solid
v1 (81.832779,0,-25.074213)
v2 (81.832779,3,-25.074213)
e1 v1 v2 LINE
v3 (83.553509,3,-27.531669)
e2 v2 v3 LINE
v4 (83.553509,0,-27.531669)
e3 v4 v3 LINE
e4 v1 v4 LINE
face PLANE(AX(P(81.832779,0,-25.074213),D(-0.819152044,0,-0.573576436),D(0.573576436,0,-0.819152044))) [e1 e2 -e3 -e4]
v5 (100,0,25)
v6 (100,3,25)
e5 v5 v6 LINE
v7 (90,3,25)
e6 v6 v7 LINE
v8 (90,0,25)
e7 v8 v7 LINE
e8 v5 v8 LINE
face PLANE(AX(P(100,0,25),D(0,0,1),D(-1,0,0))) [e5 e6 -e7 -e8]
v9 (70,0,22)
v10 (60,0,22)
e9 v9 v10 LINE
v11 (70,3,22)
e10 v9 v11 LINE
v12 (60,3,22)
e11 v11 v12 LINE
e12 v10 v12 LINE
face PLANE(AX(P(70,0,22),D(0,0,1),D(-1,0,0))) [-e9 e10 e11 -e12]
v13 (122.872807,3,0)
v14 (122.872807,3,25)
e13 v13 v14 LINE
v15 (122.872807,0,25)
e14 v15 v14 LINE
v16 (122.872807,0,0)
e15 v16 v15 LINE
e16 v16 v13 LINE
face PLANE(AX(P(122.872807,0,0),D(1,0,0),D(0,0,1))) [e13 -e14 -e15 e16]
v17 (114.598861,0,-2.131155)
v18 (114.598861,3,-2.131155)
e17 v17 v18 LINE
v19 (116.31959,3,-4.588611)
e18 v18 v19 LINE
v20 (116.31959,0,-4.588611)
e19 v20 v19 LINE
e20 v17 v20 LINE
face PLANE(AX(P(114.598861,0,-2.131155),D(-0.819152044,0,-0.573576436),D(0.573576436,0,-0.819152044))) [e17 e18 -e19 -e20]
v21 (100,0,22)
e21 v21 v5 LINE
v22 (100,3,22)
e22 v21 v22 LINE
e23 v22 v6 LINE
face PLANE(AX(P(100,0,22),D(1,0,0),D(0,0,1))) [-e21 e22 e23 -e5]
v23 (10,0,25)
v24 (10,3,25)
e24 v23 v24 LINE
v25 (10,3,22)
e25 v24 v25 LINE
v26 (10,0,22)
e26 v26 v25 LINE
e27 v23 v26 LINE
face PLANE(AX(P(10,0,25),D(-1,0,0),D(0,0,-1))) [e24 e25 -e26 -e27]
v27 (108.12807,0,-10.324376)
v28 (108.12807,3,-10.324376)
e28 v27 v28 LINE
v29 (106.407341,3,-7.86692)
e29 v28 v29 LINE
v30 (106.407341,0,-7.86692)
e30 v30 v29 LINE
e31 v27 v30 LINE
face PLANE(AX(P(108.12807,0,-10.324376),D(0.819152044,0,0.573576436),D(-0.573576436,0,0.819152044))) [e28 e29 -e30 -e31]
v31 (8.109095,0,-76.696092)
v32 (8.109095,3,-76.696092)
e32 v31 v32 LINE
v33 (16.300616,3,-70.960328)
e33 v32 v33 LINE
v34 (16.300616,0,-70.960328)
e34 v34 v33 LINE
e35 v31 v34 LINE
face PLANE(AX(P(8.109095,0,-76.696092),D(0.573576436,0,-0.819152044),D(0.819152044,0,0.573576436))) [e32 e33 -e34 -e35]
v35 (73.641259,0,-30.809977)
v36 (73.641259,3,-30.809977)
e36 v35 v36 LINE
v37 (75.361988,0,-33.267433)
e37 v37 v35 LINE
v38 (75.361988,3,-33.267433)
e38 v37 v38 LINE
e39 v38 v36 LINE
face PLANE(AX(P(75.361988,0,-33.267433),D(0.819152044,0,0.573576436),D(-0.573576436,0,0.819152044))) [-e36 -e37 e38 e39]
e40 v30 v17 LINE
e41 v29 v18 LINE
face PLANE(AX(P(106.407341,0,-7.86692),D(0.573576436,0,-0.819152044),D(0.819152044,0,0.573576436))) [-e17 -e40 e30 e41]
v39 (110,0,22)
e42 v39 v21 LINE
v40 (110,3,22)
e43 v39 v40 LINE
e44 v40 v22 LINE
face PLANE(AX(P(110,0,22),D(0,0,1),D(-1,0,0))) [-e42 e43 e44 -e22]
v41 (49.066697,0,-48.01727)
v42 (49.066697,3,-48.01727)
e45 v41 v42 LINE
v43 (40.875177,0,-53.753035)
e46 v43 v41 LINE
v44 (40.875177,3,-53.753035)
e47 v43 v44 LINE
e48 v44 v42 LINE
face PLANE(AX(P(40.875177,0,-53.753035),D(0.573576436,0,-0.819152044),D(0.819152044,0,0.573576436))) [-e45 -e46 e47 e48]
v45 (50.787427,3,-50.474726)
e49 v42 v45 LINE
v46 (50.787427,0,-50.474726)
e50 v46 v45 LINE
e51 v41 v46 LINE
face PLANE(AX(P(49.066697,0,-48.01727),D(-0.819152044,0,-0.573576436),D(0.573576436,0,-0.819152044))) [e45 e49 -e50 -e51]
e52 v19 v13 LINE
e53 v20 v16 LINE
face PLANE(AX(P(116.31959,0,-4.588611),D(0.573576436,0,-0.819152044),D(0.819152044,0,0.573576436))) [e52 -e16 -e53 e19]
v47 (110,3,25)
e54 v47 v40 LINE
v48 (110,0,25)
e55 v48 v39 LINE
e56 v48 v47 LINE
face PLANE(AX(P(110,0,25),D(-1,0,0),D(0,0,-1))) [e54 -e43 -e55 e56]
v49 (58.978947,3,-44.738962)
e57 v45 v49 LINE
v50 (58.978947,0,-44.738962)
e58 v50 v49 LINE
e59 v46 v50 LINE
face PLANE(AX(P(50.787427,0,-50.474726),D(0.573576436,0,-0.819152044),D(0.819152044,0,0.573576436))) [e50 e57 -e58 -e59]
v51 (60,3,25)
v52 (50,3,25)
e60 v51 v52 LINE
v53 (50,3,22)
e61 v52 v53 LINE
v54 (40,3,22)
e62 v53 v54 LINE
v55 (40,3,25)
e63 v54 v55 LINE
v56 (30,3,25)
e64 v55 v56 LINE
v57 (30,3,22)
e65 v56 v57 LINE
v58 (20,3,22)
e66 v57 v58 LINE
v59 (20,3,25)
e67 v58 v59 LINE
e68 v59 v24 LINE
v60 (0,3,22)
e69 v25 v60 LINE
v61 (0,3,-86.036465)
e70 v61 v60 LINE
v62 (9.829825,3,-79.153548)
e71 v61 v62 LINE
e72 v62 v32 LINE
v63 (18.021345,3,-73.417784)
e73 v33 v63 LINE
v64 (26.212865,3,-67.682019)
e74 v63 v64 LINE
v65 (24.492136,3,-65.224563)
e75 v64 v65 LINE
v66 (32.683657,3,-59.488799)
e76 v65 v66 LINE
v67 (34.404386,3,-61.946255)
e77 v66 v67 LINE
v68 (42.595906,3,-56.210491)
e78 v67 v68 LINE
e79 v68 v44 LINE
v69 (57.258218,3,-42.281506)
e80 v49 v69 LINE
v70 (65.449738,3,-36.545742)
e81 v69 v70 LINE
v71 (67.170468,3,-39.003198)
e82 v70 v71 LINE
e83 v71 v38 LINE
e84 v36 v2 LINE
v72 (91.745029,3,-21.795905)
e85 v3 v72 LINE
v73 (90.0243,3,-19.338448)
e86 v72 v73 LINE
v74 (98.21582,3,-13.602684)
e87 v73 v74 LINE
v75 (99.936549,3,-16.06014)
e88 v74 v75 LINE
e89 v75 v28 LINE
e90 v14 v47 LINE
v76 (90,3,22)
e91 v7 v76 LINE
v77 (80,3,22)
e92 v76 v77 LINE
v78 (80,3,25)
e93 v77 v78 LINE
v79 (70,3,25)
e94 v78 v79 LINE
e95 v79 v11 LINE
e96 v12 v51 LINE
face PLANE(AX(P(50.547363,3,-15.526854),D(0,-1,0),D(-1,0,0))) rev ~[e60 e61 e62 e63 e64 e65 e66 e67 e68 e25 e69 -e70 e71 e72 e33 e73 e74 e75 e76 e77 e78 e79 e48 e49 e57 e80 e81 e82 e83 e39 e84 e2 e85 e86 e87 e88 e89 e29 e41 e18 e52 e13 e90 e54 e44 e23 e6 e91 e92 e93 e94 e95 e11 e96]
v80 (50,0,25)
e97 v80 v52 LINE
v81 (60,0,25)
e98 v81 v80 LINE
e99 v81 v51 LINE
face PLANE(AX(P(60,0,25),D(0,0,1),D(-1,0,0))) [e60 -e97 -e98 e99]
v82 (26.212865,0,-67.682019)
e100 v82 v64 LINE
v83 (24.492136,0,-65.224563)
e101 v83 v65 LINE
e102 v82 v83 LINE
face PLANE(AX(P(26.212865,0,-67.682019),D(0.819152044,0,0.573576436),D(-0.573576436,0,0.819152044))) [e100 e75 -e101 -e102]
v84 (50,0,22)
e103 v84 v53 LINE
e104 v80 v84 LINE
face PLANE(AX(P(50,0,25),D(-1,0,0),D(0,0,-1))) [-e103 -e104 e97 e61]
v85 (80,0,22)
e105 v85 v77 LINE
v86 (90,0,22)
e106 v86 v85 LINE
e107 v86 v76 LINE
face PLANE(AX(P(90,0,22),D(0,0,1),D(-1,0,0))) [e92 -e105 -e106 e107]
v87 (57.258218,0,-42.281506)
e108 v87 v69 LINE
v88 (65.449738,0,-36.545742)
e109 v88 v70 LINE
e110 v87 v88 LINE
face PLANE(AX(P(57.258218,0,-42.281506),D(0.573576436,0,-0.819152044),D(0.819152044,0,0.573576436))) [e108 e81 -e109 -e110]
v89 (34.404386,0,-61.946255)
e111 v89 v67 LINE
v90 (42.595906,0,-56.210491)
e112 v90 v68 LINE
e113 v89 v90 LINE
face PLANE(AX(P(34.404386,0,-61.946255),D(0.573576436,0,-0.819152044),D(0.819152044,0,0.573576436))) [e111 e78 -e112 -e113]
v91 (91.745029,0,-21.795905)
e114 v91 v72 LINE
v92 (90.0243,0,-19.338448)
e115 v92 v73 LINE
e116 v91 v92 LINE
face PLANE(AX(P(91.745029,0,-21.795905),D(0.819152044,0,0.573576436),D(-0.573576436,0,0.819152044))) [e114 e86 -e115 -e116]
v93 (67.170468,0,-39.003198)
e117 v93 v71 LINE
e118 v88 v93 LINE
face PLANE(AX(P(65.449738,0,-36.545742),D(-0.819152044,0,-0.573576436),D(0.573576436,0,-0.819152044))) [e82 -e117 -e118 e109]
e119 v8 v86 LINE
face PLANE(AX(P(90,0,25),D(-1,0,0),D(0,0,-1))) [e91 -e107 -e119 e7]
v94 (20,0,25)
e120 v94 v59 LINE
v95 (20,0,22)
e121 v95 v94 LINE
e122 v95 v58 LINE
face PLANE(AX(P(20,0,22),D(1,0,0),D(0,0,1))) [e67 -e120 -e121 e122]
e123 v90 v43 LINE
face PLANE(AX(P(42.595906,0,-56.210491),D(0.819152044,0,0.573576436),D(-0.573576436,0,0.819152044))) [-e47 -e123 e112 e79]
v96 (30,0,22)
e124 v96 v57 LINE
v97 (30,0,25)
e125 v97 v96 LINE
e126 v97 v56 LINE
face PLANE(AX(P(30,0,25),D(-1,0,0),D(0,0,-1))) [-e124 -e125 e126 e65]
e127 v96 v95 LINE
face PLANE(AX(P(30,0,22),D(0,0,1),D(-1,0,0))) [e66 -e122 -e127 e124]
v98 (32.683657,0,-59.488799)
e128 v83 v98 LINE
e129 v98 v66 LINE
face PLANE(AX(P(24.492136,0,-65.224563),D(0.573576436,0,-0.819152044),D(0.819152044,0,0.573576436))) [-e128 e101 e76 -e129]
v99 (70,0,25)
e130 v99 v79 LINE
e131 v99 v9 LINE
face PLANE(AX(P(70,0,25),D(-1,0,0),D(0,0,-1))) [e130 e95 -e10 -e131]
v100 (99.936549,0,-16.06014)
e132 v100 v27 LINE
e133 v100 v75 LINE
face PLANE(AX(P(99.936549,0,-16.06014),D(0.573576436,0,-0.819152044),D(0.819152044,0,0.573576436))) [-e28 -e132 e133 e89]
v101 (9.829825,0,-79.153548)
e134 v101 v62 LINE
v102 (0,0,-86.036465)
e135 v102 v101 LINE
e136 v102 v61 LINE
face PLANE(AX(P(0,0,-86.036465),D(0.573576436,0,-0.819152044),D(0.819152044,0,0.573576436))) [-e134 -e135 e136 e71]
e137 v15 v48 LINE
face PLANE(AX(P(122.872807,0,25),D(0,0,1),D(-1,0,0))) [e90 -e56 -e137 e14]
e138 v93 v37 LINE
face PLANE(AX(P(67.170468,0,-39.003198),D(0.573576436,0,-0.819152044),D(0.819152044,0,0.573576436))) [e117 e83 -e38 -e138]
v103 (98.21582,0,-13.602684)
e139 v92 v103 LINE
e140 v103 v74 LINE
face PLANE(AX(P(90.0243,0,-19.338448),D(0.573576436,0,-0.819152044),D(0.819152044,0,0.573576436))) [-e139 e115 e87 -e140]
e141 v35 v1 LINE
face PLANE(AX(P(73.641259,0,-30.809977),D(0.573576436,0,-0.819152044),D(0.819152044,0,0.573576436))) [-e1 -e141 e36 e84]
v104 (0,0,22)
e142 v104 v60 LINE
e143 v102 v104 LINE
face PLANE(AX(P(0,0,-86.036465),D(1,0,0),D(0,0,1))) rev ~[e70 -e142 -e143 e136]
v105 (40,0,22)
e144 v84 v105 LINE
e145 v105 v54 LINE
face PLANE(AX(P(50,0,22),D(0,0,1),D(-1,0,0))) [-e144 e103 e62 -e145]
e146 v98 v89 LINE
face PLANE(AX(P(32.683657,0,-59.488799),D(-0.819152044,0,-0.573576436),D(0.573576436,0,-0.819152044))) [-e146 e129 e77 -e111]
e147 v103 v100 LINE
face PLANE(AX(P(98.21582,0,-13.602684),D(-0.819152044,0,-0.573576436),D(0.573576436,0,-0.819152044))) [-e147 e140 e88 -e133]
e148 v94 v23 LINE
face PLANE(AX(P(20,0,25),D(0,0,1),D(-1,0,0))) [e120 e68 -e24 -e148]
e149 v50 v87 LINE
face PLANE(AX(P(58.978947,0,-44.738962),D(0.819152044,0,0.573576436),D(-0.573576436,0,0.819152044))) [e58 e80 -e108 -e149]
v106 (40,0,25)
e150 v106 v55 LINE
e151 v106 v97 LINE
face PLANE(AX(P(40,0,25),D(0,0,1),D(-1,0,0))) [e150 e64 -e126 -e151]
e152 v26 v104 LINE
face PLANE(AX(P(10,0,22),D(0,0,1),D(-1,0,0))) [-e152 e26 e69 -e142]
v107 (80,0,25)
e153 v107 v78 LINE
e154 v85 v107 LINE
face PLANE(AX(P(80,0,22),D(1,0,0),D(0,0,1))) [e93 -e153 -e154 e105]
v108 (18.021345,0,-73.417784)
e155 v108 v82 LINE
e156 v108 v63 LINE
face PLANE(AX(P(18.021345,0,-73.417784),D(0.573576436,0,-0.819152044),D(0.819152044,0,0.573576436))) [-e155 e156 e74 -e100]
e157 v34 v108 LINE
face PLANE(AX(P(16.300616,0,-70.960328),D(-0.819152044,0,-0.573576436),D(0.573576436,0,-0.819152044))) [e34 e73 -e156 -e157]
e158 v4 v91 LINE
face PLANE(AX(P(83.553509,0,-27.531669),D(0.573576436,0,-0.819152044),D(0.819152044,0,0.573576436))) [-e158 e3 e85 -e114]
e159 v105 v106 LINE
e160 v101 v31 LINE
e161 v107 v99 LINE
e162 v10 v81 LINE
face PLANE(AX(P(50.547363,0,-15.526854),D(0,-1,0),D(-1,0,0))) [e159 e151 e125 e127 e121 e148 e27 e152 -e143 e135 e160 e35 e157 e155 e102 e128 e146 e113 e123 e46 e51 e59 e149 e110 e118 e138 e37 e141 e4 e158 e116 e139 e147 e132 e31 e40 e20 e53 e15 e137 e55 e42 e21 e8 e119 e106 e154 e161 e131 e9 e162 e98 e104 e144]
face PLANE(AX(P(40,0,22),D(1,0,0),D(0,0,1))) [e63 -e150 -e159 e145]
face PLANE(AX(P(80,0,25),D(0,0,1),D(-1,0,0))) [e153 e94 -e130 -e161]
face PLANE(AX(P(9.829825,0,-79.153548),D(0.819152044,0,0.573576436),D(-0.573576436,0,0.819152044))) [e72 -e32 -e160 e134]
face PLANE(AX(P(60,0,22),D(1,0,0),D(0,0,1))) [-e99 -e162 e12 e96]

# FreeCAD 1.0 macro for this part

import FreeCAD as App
import Part
import Sketcher
from FreeCAD import Vector
Q = App.Units.Quantity


def add_polygon(sketch, points):
    """Adds a closed chain of lines whose ends are joined by coincident constraints."""
    first, n = sketch.GeometryCount, len(points)
    for a, b in zip(points, points[1:] + points[:1]):
        sketch.addGeometry(Part.LineSegment(App.Vector(*a, 0), App.Vector(*b, 0)), False)
    for i in range(n):
        sketch.addConstraint(Sketcher.Constraint("Coincident", first + i, 2, first + (i + 1) % n, 1))

doc = App.newDocument("Part")
params = doc.addObject("Spreadsheet::Sheet", "Params")
for row, (alias, value) in enumerate([
    ("sketch1_width", "10 mm"),
    ("sketch1_height", "3 mm"),
    ("sketch1_height2", "25 mm"),
    ("sketch1_length", "8 mm"),
    ("sketch1_length2", "3 mm"),
    ("pad1_length", "3 mm"),
], start=1):
    params.set(f"A{row}", alias)
    params.set(f"B{row}", "=" + value)
    params.setAlias(f"B{row}", alias)

body = doc.addObject("PartDesign::Body", "Body")

sketch1 = body.newObject("Sketcher::SketchObject", "Sketch")
sketch1.AttachmentSupport = (doc.getObject("XZ_Plane"), [""])
sketch1.MapMode = "FlatFace"
add_polygon(sketch1, [(0, -86.036465), (0, 22), (10, 22), (10, 25), (20, 25), (20, 22), (30, 22), (30, 25), (40, 25), (40, 22), (50, 22), (50, 25), (60, 25), (60, 22), (70, 22), (70, 25), (80, 25), (80, 22), (90, 22), (90, 25), (100, 25), (100, 22), (110, 22), (110, 25), (122.872807, 25), (122.872807, 0), (116.31959, -4.588611), (114.598861, -2.131155), (106.407341, -7.86692), (108.12807, -10.324376), (99.936549, -16.06014), (98.21582, -13.602684), (90.0243, -19.338448), (91.745029, -21.795905), (83.553509, -27.531669), (81.832779, -25.074213), (73.641259, -30.809977), (75.361988, -33.267433), (67.170468, -39.003198), (65.449738, -36.545742), (57.258218, -42.281506), (58.978947, -44.738962), (50.787427, -50.474726), (49.066697, -48.01727), (40.875177, -53.753035), (42.595906, -56.210491), (34.404386, -61.946255), (32.683657, -59.488799), (24.492136, -65.224563), (26.212865, -67.682019), (18.021345, -73.417784), (16.300616, -70.960328), (8.109095, -76.696092), (9.829825, -79.153548)])
sketch1.addConstraint([
    Sketcher.Constraint("Vertical", 0),
    Sketcher.Constraint("Horizontal", 1),
    Sketcher.Constraint("Vertical", 2),
    Sketcher.Constraint("Horizontal", 3),
    Sketcher.Constraint("Vertical", 4),
    Sketcher.Constraint("Horizontal", 5),
    Sketcher.Constraint("Vertical", 6),
    Sketcher.Constraint("Horizontal", 7),
    Sketcher.Constraint("Vertical", 8),
    Sketcher.Constraint("Horizontal", 9),
    Sketcher.Constraint("Vertical", 10),
    Sketcher.Constraint("Horizontal", 11),
    Sketcher.Constraint("Vertical", 12),
    Sketcher.Constraint("Horizontal", 13),
    Sketcher.Constraint("Vertical", 14),
    Sketcher.Constraint("Horizontal", 15),
    Sketcher.Constraint("Vertical", 16),
    Sketcher.Constraint("Horizontal", 17),
    Sketcher.Constraint("Vertical", 18),
    Sketcher.Constraint("Horizontal", 19),
    Sketcher.Constraint("Vertical", 20),
    Sketcher.Constraint("Horizontal", 21),
    Sketcher.Constraint("Vertical", 22),
    Sketcher.Constraint("Horizontal", 23),
    Sketcher.Constraint("Vertical", 24),
    Sketcher.Constraint("PointOnObject", 0, 2, -2),
    Sketcher.Constraint("PointOnObject", 24, 2, -1),
    Sketcher.Constraint("Perpendicular", 25, 26),
    Sketcher.Constraint("Perpendicular", 26, 27),
    Sketcher.Constraint("Perpendicular", 27, 28),
    Sketcher.Constraint("Perpendicular", 28, 29),
    Sketcher.Constraint("Perpendicular", 29, 30),
    Sketcher.Constraint("Perpendicular", 30, 31),
    Sketcher.Constraint("Perpendicular", 31, 32),
    Sketcher.Constraint("Perpendicular", 32, 33),
    Sketcher.Constraint("Perpendicular", 33, 34),
    Sketcher.Constraint("Perpendicular", 34, 35),
    Sketcher.Constraint("Perpendicular", 35, 36),
    Sketcher.Constraint("Perpendicular", 36, 37),
    Sketcher.Constraint("Perpendicular", 37, 38),
    Sketcher.Constraint("Perpendicular", 38, 39),
    Sketcher.Constraint("Perpendicular", 39, 40),
    Sketcher.Constraint("Perpendicular", 40, 41),
    Sketcher.Constraint("Perpendicular", 41, 42),
    Sketcher.Constraint("Perpendicular", 42, 43),
    Sketcher.Constraint("Perpendicular", 43, 44),
    Sketcher.Constraint("Perpendicular", 44, 45),
    Sketcher.Constraint("Perpendicular", 45, 46),
    Sketcher.Constraint("Perpendicular", 46, 47),
    Sketcher.Constraint("Perpendicular", 47, 48),
    Sketcher.Constraint("Perpendicular", 48, 49),
    Sketcher.Constraint("Perpendicular", 49, 50),
    Sketcher.Constraint("Perpendicular", 50, 51),
    Sketcher.Constraint("Perpendicular", 51, 52),
    Sketcher.Constraint("Perpendicular", 52, 53),
    Sketcher.Constraint("Horizontal", 1, 2, 4, 2),
    Sketcher.Constraint("Horizontal", 3, 2, 6, 2),
    Sketcher.Constraint("Horizontal", 5, 2, 8, 2),
    Sketcher.Constraint("Horizontal", 7, 2, 10, 2),
    Sketcher.Constraint("Horizontal", 9, 2, 12, 2),
    Sketcher.Constraint("Horizontal", 11, 2, 14, 2),
    Sketcher.Constraint("Horizontal", 13, 2, 16, 2),
    Sketcher.Constraint("Horizontal", 15, 2, 18, 2),
    Sketcher.Constraint("Horizontal", 17, 2, 20, 2),
    Sketcher.Constraint("Horizontal", 19, 2, 22, 2),
    Sketcher.Constraint("Equal", 1, 3),
    Sketcher.Constraint("Equal", 3, 5),
    Sketcher.Constraint("Equal", 5, 7),
    Sketcher.Constraint("Equal", 7, 9),
    Sketcher.Constraint("Equal", 9, 11),
    Sketcher.Constraint("Equal", 11, 13),
    Sketcher.Constraint("Equal", 13, 15),
    Sketcher.Constraint("Equal", 15, 17),
    Sketcher.Constraint("Equal", 17, 19),
    Sketcher.Constraint("Equal", 19, 21),
    Sketcher.Constraint("Equal", 26, 28),
    Sketcher.Constraint("Equal", 27, 29),
    Sketcher.Constraint("Equal", 28, 30),
    Sketcher.Constraint("Equal", 29, 31),
    Sketcher.Constraint("Equal", 30, 32),
    Sketcher.Constraint("Equal", 31, 33),
    Sketcher.Constraint("Equal", 32, 34),
    Sketcher.Constraint("Equal", 33, 35),
    Sketcher.Constraint("Equal", 34, 36),
    Sketcher.Constraint("Equal", 35, 37),
    Sketcher.Constraint("Equal", 36, 38),
    Sketcher.Constraint("Equal", 37, 39),
    Sketcher.Constraint("Equal", 38, 40),
    Sketcher.Constraint("Equal", 39, 41),
    Sketcher.Constraint("Equal", 40, 42),
    Sketcher.Constraint("Equal", 41, 43),
    Sketcher.Constraint("Equal", 42, 44),
    Sketcher.Constraint("Equal", 43, 45),
    Sketcher.Constraint("Equal", 44, 46),
    Sketcher.Constraint("Equal", 45, 47),
    Sketcher.Constraint("Equal", 46, 48),
    Sketcher.Constraint("Equal", 47, 49),
    Sketcher.Constraint("Equal", 48, 50),
    Sketcher.Constraint("Equal", 49, 51),
    Sketcher.Constraint("Equal", 50, 52),
    Sketcher.Constraint("DistanceX", 1, 1, 1, 2, Q("10 mm")),
    Sketcher.Constraint("DistanceY", 2, 1, 2, 2, Q("3 mm")),
    Sketcher.Constraint("DistanceY", 24, 2, 24, 1, Q("25 mm")),
    Sketcher.Constraint("Angle", 25, Q("-145 deg")),
    Sketcher.Constraint("Distance", 25, Q("8 mm")),
    Sketcher.Constraint("Distance", 26, Q("3 mm")),
    Sketcher.Constraint("Distance", 27, Q("10 mm")),
    Sketcher.Constraint("Distance", 53, Q("12 mm")),
])
sketch1.setExpression("Constraints[154]", "Params.sketch1_width")
sketch1.setExpression("Constraints[155]", "Params.sketch1_height")
sketch1.setExpression("Constraints[156]", "Params.sketch1_height2")
sketch1.setExpression("Constraints[158]", "Params.sketch1_length")
sketch1.setExpression("Constraints[159]", "Params.sketch1_length2")
pad1 = body.newObject("PartDesign::Pad", "Pad")
pad1.Profile = sketch1
pad1.setExpression("Length", "Params.pad1_length")
pad1.Reversed = True

doc.recompute()
